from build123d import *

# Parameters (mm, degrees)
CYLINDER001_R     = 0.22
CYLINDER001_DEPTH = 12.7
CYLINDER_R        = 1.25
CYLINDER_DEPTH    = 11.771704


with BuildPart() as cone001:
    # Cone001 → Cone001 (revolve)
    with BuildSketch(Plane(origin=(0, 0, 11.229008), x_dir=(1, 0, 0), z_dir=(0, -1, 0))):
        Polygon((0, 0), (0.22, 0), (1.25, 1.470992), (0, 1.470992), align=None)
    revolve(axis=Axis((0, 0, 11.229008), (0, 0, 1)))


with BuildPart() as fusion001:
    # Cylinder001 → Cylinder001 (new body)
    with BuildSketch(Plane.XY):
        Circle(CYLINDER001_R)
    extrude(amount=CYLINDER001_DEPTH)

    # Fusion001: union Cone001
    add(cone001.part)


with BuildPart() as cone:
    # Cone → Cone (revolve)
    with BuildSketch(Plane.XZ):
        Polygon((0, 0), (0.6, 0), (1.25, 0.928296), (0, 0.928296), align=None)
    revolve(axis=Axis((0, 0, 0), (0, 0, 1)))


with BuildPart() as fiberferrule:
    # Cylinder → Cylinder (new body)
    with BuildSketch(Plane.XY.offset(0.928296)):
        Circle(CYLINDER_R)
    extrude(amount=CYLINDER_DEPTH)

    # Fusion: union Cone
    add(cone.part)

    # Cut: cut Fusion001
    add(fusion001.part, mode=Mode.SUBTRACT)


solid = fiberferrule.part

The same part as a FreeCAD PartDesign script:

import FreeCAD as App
import Part
import Sketcher

V = App.Vector
Q = App.Units.Quantity

doc = App.newDocument("Part")
params = doc.addObject("Spreadsheet::Sheet", "Params")
for row, (alias, value) in enumerate([
    ("sketch1_width", "0.22 mm"),
    ("sketch1_width2", "1.25 mm"),
    ("revolution_angle", "360 deg"),
    ("sketch2_diameter", "0.44 mm"),
    ("pad1_length", "12.7 mm"),
    ("sketch3_width", "0.6 mm"),
    ("sketch3_width2", "1.25 mm"),
    ("revolution2_angle", "360 deg"),
    ("sketch4_diameter", "2.5 mm"),
    ("pad2_length", "11.771704 mm"),
], start=1):
    params.set(f"A{row}", alias)
    params.set(f"B{row}", "=" + value)
    params.setAlias(f"B{row}", alias)

body = doc.addObject("PartDesign::Body", "Body")

# Sketch on XZ plane
sketch1 = body.newObject("Sketcher::SketchObject", "Sketch")
sketch1.AttachmentSupport = (doc.getObject("XZ_Plane"), [""])
sketch1.MapMode = "FlatFace"
sketch1.addGeometry(Part.LineSegment(V(0, 11.229008, 0), V(0.22, 11.229008, 0)), False)
sketch1.addGeometry(Part.LineSegment(V(0.22, 11.229008, 0), V(1.25, 12.7, 0)), False)
sketch1.addGeometry(Part.LineSegment(V(1.25, 12.7, 0), V(0, 12.7, 0)), False)
sketch1.addGeometry(Part.LineSegment(V(0, 12.7, 0), V(0, 11.229008, 0)), False)
sketch1.addConstraint(Sketcher.Constraint("Coincident", 0, 2, 1, 1))
sketch1.addConstraint(Sketcher.Constraint("Coincident", 1, 2, 2, 1))
sketch1.addConstraint(Sketcher.Constraint("Coincident", 2, 2, 3, 1))
sketch1.addConstraint(Sketcher.Constraint("Coincident", 3, 2, 0, 1))
sketch1.addConstraint(Sketcher.Constraint("Horizontal", 0))
sketch1.addConstraint(Sketcher.Constraint("Horizontal", 2))
sketch1.addConstraint(Sketcher.Constraint("Vertical", 3))
sketch1.addConstraint(Sketcher.Constraint("PointOnObject", 2, 2, -2))
sketch1.addConstraint(Sketcher.Constraint("Angle", 1, Q("54.999992 deg")))
sketch1.addConstraint(Sketcher.Constraint("DistanceX", 0, 1, 0, 2, 0.22))
sketch1.addConstraint(Sketcher.Constraint("DistanceX", 2, 2, 2, 1, 1.25))
sketch1.addConstraint(Sketcher.Constraint("DistanceY", -1, 1, 1, 2, 12.7))
sketch1.setExpression("Constraints[9]", "Params.sketch1_width")
sketch1.setExpression("Constraints[10]", "Params.sketch1_width2")
revolution = body.newObject("PartDesign::Revolution", "Revolution")
revolution.Profile = sketch1
revolution.ReferenceAxis = (sketch1, ["V_Axis"])
revolution.setExpression("Angle", "Params.revolution_angle")
body2 = doc.addObject("PartDesign::Body", "Body001")

# Sketch on XY plane
sketch2 = body2.newObject("Sketcher::SketchObject", "Sketch001")
sketch2.AttachmentSupport = (doc.getObject("XY_Plane001"), [""])
sketch2.MapMode = "FlatFace"
sketch2.addGeometry(Part.Circle(V(0, 0, 0), V(0, 0, 1), 0.22), False)
sketch2.addConstraint(Sketcher.Constraint("Coincident", 0, 3, -1, 1))
sketch2.addConstraint(Sketcher.Constraint("Diameter", 0, 0.44))
sketch2.setExpression("Constraints[1]", "Params.sketch2_diameter")
pad1 = body2.newObject("PartDesign::Pad", "Pad")
pad1.Profile = sketch2
pad1.setExpression("Length", "Params.pad1_length")
doc.recompute()

boolean = body2.newObject("PartDesign::Boolean", "Boolean")
boolean.Type = "Fuse"
boolean.addObjects([body])
body3 = doc.addObject("PartDesign::Body", "Body002")

# Sketch on XZ plane
sketch3 = body3.newObject("Sketcher::SketchObject", "Sketch002")
sketch3.AttachmentSupport = (doc.getObject("XZ_Plane002"), [""])
sketch3.MapMode = "FlatFace"
sketch3.addGeometry(Part.LineSegment(V(0, 0, 0), V(0.6, 0, 0)), False)
sketch3.addGeometry(Part.LineSegment(V(0.6, 0, 0), V(1.25, 0.928296, 0)), False)
sketch3.addGeometry(Part.LineSegment(V(1.25, 0.928296, 0), V(0, 0.928296, 0)), False)
sketch3.addGeometry(Part.LineSegment(V(0, 0.928296, 0), V(0, 0, 0)), False)
sketch3.addConstraint(Sketcher.Constraint("Coincident", 0, 2, 1, 1))
sketch3.addConstraint(Sketcher.Constraint("Coincident", 1, 2, 2, 1))
sketch3.addConstraint(Sketcher.Constraint("Coincident", 2, 2, 3, 1))
sketch3.addConstraint(Sketcher.Constraint("Coincident", 3, 2, 0, 1))
sketch3.addConstraint(Sketcher.Constraint("Horizontal", 0))
sketch3.addConstraint(Sketcher.Constraint("Horizontal", 2))
sketch3.addConstraint(Sketcher.Constraint("Vertical", 3))
sketch3.addConstraint(Sketcher.Constraint("Coincident", 3, 2, -1, 1))
sketch3.addConstraint(Sketcher.Constraint("Angle", 1, Q("54.999994 deg")))
sketch3.addConstraint(Sketcher.Constraint("DistanceX", 0, 1, 0, 2, 0.6))
sketch3.addConstraint(Sketcher.Constraint("DistanceX", 2, 2, 2, 1, 1.25))
sketch3.setExpression("Constraints[9]", "Params.sketch3_width")
sketch3.setExpression("Constraints[10]", "Params.sketch3_width2")
revolution2 = body3.newObject("PartDesign::Revolution", "Revolution001")
revolution2.Profile = sketch3
revolution2.ReferenceAxis = (sketch3, ["V_Axis"])
revolution2.setExpression("Angle", "Params.revolution2_angle")
body4 = doc.addObject("PartDesign::Body", "Body003")

# Sketch on XY plane
sketch4 = body4.newObject("Sketcher::SketchObject", "Sketch003")
sketch4.AttachmentSupport = (doc.getObject("XY_Plane003"), [""])
sketch4.MapMode = "FlatFace"
sketch4.AttachmentOffset = App.Placement(V(0, 0, 0.928296), App.Rotation())
sketch4.addGeometry(Part.Circle(V(0, 0, 0), V(0, 0, 1), 1.25), False)
sketch4.addConstraint(Sketcher.Constraint("Coincident", 0, 3, -1, 1))
sketch4.addConstraint(Sketcher.Constraint("Diameter", 0, 2.5))
sketch4.setExpression("Constraints[1]", "Params.sketch4_diameter")
pad2 = body4.newObject("PartDesign::Pad", "Pad001")
pad2.Profile = sketch4
pad2.setExpression("Length", "Params.pad2_length")
doc.recompute()

boolean2 = body4.newObject("PartDesign::Boolean", "Boolean001")
boolean2.Type = "Fuse"
boolean2.addObjects([body3])
doc.recompute()

boolean3 = body4.newObject("PartDesign::Boolean", "Boolean002")
boolean3.Type = "Cut"
boolean3.addObjects([body2])

doc.recompute()
